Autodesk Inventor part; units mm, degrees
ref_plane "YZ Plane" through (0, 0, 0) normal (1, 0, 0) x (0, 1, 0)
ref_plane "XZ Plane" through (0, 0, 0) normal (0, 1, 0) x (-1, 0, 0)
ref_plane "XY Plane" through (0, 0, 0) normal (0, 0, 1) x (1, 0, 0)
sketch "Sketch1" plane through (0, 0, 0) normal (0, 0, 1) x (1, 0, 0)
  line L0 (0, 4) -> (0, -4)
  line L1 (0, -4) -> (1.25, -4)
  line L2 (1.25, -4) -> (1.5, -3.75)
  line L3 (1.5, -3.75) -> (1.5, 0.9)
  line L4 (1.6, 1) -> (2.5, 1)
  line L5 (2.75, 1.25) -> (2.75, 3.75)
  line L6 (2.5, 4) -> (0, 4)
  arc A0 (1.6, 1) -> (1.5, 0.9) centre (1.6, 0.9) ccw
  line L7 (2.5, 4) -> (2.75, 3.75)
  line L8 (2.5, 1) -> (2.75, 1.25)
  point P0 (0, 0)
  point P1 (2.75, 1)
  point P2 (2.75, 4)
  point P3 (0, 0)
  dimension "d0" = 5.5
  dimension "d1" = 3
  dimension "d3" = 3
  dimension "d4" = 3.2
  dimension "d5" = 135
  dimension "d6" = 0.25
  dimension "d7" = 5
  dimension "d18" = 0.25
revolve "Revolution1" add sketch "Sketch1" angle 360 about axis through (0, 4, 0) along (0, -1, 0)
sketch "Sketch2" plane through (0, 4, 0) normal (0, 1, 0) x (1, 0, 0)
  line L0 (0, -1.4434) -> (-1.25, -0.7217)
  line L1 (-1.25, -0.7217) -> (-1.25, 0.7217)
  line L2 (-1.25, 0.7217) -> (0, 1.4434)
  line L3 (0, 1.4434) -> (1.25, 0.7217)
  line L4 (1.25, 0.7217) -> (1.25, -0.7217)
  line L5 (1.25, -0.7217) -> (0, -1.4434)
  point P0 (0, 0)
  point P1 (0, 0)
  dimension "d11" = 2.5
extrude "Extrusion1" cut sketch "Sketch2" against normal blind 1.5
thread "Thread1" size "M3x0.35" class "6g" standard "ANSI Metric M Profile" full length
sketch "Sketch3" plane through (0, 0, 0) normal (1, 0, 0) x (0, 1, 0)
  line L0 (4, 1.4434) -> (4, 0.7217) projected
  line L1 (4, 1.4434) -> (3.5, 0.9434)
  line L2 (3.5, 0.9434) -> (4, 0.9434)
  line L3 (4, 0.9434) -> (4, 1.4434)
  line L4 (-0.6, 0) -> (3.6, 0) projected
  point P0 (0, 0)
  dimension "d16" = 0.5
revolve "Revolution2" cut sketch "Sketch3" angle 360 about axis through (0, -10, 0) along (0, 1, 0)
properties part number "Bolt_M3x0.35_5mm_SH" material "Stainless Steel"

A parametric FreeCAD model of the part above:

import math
import FreeCAD as App
import Part
import Sketcher

V = App.Vector
Q = App.Units.Quantity


def add_polygon(sketch, points):
    """Adds a closed chain of lines whose ends are joined by coincident constraints."""
    first, n = sketch.GeometryCount, len(points)
    for a, b in zip(points, points[1:] + points[:1]):
        sketch.addGeometry(Part.LineSegment(App.Vector(*a, 0), App.Vector(*b, 0)), False)
    for i in range(n):
        sketch.addConstraint(Sketcher.Constraint("Coincident", first + i, 2, first + (i + 1) % n, 1))

doc = App.newDocument("Part")
body = doc.addObject("PartDesign::Body", "Body")

sketch1 = body.newObject("Sketcher::SketchObject", "Sketch")
sketch1.AttachmentSupport = (doc.getObject("XY_Plane"), [""])
sketch1.MapMode = "FlatFace"
sketch1.addGeometry([
    Part.LineSegment(V(2.5, 4, 0), V(0, 4, 0)),
    Part.LineSegment(V(0, 4, 0), V(0, -4, 0)),
    Part.LineSegment(V(0, -4, 0), V(1.25, -4, 0)),
    Part.LineSegment(V(1.25, -4, 0), V(1.5, -3.75, 0)),
    Part.LineSegment(V(1.5, -3.75, 0), V(1.5, 0.9, 0)),
    Part.ArcOfCircle(Part.Circle(V(1.6, 0.9, 0), V(0, 0, 1), 0.1), math.radians(90), math.radians(180)),
    Part.LineSegment(V(1.6, 1, 0), V(2.5, 1, 0)),
    Part.LineSegment(V(2.5, 1, 0), V(2.75, 1.25, 0)),
    Part.LineSegment(V(2.75, 1.25, 0), V(2.75, 3.75, 0)),
    Part.LineSegment(V(2.75, 3.75, 0), V(2.5, 4, 0)),
], False)
sketch1.addConstraint([
    Sketcher.Constraint("Coincident", 0, 2, 1, 1),
    Sketcher.Constraint("Coincident", 1, 2, 2, 1),
    Sketcher.Constraint("Coincident", 2, 2, 3, 1),
    Sketcher.Constraint("Coincident", 3, 2, 4, 1),
    Sketcher.Constraint("Tangent", 4, 2, 5, 2),
    Sketcher.Constraint("Tangent", 5, 1, 6, 1),
    Sketcher.Constraint("Coincident", 6, 2, 7, 1),
    Sketcher.Constraint("Coincident", 7, 2, 8, 1),
    Sketcher.Constraint("Coincident", 8, 2, 9, 1),
    Sketcher.Constraint("Coincident", 9, 2, 0, 1),
    Sketcher.Constraint("Horizontal", 0),
    Sketcher.Constraint("Vertical", 1),
    Sketcher.Constraint("Horizontal", 2),
    Sketcher.Constraint("Vertical", 4),
    Sketcher.Constraint("Horizontal", 6),
    Sketcher.Constraint("Vertical", 8),
    Sketcher.Constraint("Symmetric", 0, 2, 1, 2, -1, 1),
    Sketcher.Constraint("Parallel", 3, 7),
    Sketcher.Constraint("Perpendicular", 7, 9),
    Sketcher.Constraint("Vertical", 6, 2, 9, 2),
    Sketcher.Constraint("Equal", 0, 8),
    Sketcher.Constraint("Equal", 3, 7),
    Sketcher.Constraint("Equal", 7, 9),
    Sketcher.Constraint("DistanceY", 5, 1, 0, 2, 3.0),
    Sketcher.Constraint("DistanceY", 2, 2, 5, 1, 5.0),
    Sketcher.Constraint("Radius", 5, 0.1),
    Sketcher.Constraint("DistanceX", 2, 2, 3, 2, 0.25),
    Sketcher.Constraint("DistanceX", 6, 1, 6, 2, 0.9),
])
revolution = body.newObject("PartDesign::Revolution", "Revolution")
revolution.Profile = sketch1
revolution.ReferenceAxis = (sketch1, ["V_Axis"])
revolution.Angle = 360

sketch2 = body.newObject("Sketcher::SketchObject", "Sketch001")
sketch2.AttachmentSupport = (doc.getObject("XZ_Plane"), [""])
sketch2.MapMode = "FlatFace"
sketch2.AttachmentOffset = App.Placement(V(0, 0, -4), App.Rotation())
add_polygon(sketch2, [(-1.25, 0.7217), (0, 1.4434), (1.25, 0.7217), (1.25, -0.7217), (0, -1.4434), (-1.25, -0.7217)])
sketch2.addConstraint([
    Sketcher.Constraint("Vertical", 2),
    Sketcher.Constraint("Vertical", 5),
    Sketcher.Constraint("Symmetric", 0, 2, 3, 2, -1, 1),
    Sketcher.Constraint("Symmetric", 1, 2, 4, 2, -1, 1),
    Sketcher.Constraint("PointOnObject", 0, 2, -2),
    Sketcher.Constraint("Parallel", 0, 3),
    Sketcher.Constraint("Horizontal", 2, 2, 4, 2),
    Sketcher.Constraint("DistanceX", 4, 2, 2, 2, 2.5),
    Sketcher.Constraint("Angle", 0, Q("30.0004 deg")),
    Sketcher.Constraint("DistanceY", 2, 2, 2, 1, 1.4434),
])
pocket1 = body.newObject("PartDesign::Pocket", "Pocket")
pocket1.Profile = sketch2
pocket1.Length = 1.5
pocket1.Reversed = True

sketch3 = body.newObject("Sketcher::SketchObject", "Sketch002")
sketch3.AttachmentSupport = (doc.getObject("YZ_Plane"), [""])
sketch3.MapMode = "FlatFace"
add_polygon(sketch3, [(4, 0.9434), (4, 1.4434), (3.5, 0.9434)])
sketch3.addConstraint([
    Sketcher.Constraint("Vertical", 0),
    Sketcher.Constraint("Horizontal", 2),
    Sketcher.Constraint("Equal", 2, 0),
    Sketcher.Constraint("DistanceX", 2, 1, 2, 2, 0.5),
    Sketcher.Constraint("DistanceX", -1, 1, 0, 2, 4.0),
    Sketcher.Constraint("DistanceY", -1, 1, 0, 2, 1.4434),
])
groove = body.newObject("PartDesign::Groove", "Groove")
groove.Profile = sketch3
groove.ReferenceAxis = (sketch3, ["H_Axis"])
groove.Angle = 360

doc.recompute()
